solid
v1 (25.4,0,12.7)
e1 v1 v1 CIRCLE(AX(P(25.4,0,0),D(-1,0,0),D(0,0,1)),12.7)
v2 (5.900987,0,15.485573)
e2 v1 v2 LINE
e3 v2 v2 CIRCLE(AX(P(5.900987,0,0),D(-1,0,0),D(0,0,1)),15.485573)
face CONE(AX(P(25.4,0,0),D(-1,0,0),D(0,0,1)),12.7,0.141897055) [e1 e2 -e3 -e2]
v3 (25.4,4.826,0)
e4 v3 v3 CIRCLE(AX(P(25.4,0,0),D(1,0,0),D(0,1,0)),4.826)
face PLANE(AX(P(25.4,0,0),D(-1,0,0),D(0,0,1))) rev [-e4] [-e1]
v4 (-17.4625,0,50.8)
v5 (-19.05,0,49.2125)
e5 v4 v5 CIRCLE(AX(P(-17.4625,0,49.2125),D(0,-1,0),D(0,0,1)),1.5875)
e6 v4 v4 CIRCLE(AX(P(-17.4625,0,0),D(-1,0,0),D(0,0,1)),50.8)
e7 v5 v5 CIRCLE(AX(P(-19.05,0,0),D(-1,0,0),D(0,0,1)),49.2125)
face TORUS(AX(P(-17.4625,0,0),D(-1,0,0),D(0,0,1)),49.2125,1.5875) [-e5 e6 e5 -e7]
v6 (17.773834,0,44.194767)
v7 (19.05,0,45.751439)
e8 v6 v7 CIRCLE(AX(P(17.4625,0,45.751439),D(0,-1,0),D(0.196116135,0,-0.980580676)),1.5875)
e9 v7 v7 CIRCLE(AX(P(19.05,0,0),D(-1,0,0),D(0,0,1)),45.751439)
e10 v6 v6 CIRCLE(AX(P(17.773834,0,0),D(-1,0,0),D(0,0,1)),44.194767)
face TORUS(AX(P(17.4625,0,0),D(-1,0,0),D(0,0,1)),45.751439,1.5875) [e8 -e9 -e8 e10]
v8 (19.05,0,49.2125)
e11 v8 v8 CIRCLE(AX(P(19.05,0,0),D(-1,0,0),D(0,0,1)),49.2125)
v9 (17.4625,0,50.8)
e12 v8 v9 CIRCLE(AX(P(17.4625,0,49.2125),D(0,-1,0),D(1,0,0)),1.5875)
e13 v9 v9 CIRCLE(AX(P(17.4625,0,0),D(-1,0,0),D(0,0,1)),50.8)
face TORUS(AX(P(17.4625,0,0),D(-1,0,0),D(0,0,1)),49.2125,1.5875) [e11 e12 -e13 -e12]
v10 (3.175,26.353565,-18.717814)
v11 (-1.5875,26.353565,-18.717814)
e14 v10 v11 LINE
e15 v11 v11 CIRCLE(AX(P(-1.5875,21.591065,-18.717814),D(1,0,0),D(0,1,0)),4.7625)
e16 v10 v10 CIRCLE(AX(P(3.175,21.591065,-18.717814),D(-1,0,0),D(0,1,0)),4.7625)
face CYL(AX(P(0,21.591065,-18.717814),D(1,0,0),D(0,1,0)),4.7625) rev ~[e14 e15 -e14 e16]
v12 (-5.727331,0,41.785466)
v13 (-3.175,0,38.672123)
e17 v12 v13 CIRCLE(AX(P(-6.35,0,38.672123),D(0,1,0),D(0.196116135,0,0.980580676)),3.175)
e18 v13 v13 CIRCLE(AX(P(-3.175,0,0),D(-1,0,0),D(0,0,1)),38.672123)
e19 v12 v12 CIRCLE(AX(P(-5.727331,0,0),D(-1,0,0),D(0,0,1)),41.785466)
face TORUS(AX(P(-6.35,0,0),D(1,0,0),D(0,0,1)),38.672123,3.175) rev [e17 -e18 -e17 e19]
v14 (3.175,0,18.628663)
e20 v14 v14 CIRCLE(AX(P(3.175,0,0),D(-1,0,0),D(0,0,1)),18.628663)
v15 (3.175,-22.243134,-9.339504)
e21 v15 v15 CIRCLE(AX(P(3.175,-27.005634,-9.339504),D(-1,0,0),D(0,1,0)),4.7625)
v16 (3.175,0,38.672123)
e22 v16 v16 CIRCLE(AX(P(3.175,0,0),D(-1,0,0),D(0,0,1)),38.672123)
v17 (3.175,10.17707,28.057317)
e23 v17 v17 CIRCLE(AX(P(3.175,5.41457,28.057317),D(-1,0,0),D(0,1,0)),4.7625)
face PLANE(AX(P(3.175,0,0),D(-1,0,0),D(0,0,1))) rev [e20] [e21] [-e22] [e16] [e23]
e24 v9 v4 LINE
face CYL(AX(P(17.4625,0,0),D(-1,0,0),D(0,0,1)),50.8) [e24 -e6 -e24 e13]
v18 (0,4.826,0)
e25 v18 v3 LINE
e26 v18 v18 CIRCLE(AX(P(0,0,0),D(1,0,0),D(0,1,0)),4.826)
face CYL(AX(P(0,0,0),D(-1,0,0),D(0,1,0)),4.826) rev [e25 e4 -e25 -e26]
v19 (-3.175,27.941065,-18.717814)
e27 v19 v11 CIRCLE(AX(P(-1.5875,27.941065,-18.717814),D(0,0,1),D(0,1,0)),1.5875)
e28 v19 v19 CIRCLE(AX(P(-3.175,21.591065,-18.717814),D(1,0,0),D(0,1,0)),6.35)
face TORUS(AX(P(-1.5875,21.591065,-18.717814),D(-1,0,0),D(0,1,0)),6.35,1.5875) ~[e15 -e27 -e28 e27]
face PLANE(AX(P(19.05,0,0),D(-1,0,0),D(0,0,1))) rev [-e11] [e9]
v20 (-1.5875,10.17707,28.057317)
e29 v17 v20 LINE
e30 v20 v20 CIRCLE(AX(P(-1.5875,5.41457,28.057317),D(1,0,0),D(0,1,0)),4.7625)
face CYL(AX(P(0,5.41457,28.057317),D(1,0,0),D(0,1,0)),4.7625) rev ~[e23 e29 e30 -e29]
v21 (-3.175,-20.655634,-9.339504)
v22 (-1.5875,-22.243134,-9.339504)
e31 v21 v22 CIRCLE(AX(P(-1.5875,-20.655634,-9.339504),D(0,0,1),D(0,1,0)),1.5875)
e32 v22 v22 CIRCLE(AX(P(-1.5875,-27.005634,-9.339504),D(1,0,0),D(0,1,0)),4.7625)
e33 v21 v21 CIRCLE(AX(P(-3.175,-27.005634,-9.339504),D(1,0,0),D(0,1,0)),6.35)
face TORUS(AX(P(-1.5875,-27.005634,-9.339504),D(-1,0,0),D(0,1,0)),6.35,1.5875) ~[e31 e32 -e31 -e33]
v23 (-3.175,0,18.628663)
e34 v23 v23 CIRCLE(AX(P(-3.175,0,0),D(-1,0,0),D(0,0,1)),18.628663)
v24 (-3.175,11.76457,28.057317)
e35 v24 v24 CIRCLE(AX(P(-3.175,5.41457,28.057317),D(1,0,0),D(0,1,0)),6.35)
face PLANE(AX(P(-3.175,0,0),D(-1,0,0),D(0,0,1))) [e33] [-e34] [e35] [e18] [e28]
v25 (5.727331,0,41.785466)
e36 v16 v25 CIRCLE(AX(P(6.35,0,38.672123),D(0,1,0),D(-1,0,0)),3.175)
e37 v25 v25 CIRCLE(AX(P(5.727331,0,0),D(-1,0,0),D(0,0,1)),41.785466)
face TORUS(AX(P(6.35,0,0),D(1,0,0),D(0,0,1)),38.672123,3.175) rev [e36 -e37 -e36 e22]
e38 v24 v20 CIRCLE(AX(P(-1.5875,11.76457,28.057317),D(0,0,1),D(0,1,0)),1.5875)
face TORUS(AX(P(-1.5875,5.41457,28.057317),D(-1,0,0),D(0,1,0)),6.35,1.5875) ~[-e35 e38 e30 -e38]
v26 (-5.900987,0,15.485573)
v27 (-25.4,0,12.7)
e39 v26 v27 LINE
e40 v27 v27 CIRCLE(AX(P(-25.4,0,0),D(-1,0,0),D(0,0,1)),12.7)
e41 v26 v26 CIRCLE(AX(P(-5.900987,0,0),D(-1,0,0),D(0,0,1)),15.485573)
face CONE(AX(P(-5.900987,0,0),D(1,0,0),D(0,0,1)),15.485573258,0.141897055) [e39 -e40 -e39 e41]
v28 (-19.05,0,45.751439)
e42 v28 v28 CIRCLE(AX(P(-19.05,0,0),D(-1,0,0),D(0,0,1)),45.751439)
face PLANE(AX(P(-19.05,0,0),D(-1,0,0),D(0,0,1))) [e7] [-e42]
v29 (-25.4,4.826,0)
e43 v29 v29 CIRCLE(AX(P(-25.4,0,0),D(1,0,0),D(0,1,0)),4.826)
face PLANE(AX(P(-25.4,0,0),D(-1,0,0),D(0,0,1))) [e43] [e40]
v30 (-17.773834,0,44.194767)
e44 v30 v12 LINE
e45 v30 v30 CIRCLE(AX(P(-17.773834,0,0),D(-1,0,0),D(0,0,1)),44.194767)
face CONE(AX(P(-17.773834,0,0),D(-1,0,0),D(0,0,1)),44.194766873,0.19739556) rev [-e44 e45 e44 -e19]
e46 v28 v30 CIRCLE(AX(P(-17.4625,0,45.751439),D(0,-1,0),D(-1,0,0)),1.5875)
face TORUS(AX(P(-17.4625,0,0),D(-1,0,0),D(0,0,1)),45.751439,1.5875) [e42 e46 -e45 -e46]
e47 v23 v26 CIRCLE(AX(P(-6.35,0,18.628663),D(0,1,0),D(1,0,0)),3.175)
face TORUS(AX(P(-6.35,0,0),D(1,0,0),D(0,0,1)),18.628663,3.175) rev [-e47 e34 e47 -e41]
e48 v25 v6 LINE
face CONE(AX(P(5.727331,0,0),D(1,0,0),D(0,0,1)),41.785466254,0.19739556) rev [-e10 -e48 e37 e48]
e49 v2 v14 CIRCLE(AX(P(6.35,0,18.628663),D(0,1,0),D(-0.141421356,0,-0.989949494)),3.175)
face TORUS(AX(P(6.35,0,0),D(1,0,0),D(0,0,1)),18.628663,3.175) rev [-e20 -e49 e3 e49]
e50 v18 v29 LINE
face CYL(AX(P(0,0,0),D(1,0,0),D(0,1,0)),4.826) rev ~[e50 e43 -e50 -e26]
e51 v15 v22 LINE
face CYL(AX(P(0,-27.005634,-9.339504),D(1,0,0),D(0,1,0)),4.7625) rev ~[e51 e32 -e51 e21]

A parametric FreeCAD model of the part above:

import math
import FreeCAD as App
import Part
import Sketcher
Q = App.Units.Quantity


def edges_at(feature, points):
    """Names of the edges that pass closest to the given points."""
    edges = feature.Shape.Edges
    near = lambda p: min(range(len(edges)), key=lambda i: edges[i].distToShape(Part.Vertex(*p))[0])
    return sorted({f"Edge{near(p) + 1}" for p in points})

doc = App.newDocument("Part")
params = doc.addObject("Spreadsheet::Sheet", "Params")
for row, (alias, value) in enumerate([
    ("sketch1_width", "2 in"),
    ("sketch1_height", "0.5 in"),
    ("sketch1_radius", "0.0625 in"),
    ("sketch1_radius2", "0.125 in"),
    ("revolution_angle", "360 deg"),
    ("sketch2_diameter", "0.38 in"),
    ("sketch2_diameter2", "0.375 in"),
    ("fillet_radius", "0.0625 in"),
], start=1):
    params.set(f"A{row}", alias)
    params.set(f"B{row}", "=" + value)
    params.setAlias(f"B{row}", alias)

body = doc.addObject("PartDesign::Body", "Body")

# Sketch on XZ plane
sketch1 = body.newObject("Sketcher::SketchObject", "Sketch")
sketch1.AttachmentSupport = (doc.getObject("XZ_Plane"), [""])
sketch1.MapMode = "FlatFace"
sketch1.addGeometry([
    Part.LineSegment(App.Vector(17.5, 50.8, 0), App.Vector(-17.5, 50.8, 0)),  # 0
    Part.ArcOfCircle(Part.Circle(App.Vector(-17.5, 49.2, 0), App.Vector(0, 0, 1), 1.6), math.radians(90), math.radians(180)),  # 1
    Part.LineSegment(App.Vector(-19.1, 49.2, 0), App.Vector(-19.1, 45.8, 0)),  # 2
    Part.ArcOfCircle(Part.Circle(App.Vector(-17.5, 45.8, 0), App.Vector(0, 0, 1), 1.6), math.radians(180), math.radians(259)),  # 3
    Part.LineSegment(App.Vector(-17.8, 44.2, 0), App.Vector(-5.7, 41.8, 0)),  # 4
    Part.ArcOfCircle(Part.Circle(App.Vector(-6.3, 38.7, 0), App.Vector(0, 0, 1), 3.2), math.radians(0), math.radians(79)),  # 5
    Part.LineSegment(App.Vector(-3.2, 38.7, 0), App.Vector(-3.2, 18.6, 0)),  # 6
    Part.ArcOfCircle(Part.Circle(App.Vector(-6.3, 18.6, 0), App.Vector(0, 0, 1), 3.2), math.radians(-82), math.radians(0)),  # 7
    Part.LineSegment(App.Vector(-5.9, 15.5, 0), App.Vector(-25.4, 12.7, 0)),  # 8
    Part.LineSegment(App.Vector(-25.4, 12.7, 0), App.Vector(-25.4, 0, 0)),  # 9
    Part.LineSegment(App.Vector(-25.4, 0, 0), App.Vector(25.4, 0, 0)),  # 10
    Part.LineSegment(App.Vector(25.4, 0, 0), App.Vector(25.4, 12.7, 0)),  # 11
    Part.LineSegment(App.Vector(25.4, 12.7, 0), App.Vector(5.9, 15.5, 0)),  # 12
    Part.ArcOfCircle(Part.Circle(App.Vector(6.3, 18.6, 0), App.Vector(0, 0, 1), 3.2), math.radians(180), math.radians(262)),  # 13
    Part.LineSegment(App.Vector(3.2, 18.6, 0), App.Vector(3.2, 38.7, 0)),  # 14
    Part.ArcOfCircle(Part.Circle(App.Vector(6.3, 38.7, 0), App.Vector(0, 0, 1), 3.2), math.radians(101), math.radians(180)),  # 15
    Part.LineSegment(App.Vector(5.7, 41.8, 0), App.Vector(17.8, 44.2, 0)),  # 16
    Part.ArcOfCircle(Part.Circle(App.Vector(17.5, 45.8, 0), App.Vector(0, 0, 1), 1.6), math.radians(-79), math.radians(0)),  # 17
    Part.LineSegment(App.Vector(19.1, 45.8, 0), App.Vector(19.1, 49.2, 0)),  # 18
    Part.ArcOfCircle(Part.Circle(App.Vector(17.5, 49.2, 0), App.Vector(0, 0, 1), 1.6), math.radians(0), math.radians(90)),  # 19
], False)
sketch1.addConstraint([
    Sketcher.Constraint("Tangent", 0, 2, 1, 1),
    Sketcher.Constraint("Tangent", 1, 2, 2, 1),
    Sketcher.Constraint("Tangent", 2, 2, 3, 1),
    Sketcher.Constraint("Tangent", 3, 2, 4, 1),
    Sketcher.Constraint("Tangent", 4, 2, 5, 2),
    Sketcher.Constraint("Tangent", 5, 1, 6, 1),
    Sketcher.Constraint("Tangent", 6, 2, 7, 2),
    Sketcher.Constraint("Tangent", 7, 1, 8, 1),
    Sketcher.Constraint("Coincident", 8, 2, 9, 1),
    Sketcher.Constraint("Coincident", 9, 2, 10, 1),
    Sketcher.Constraint("Coincident", 10, 2, 11, 1),
    Sketcher.Constraint("Coincident", 11, 2, 12, 1),
    Sketcher.Constraint("Tangent", 12, 2, 13, 2),
    Sketcher.Constraint("Tangent", 13, 1, 14, 1),
    Sketcher.Constraint("Tangent", 14, 2, 15, 2),
    Sketcher.Constraint("Tangent", 15, 1, 16, 1),
    Sketcher.Constraint("Tangent", 16, 2, 17, 1),
    Sketcher.Constraint("Tangent", 17, 2, 18, 1),
    Sketcher.Constraint("Tangent", 18, 2, 19, 1),
    Sketcher.Constraint("Tangent", 19, 2, 0, 1),
    Sketcher.Constraint("Horizontal", 0),
    Sketcher.Constraint("Vertical", 2),
    Sketcher.Constraint("Vertical", 6),
    Sketcher.Constraint("Vertical", 9),
    Sketcher.Constraint("Horizontal", 10),
    Sketcher.Constraint("Vertical", 11),
    Sketcher.Constraint("Vertical", 14),
    Sketcher.Constraint("Vertical", 18),
    Sketcher.Constraint("Equal", 1, 3),
    Sketcher.Constraint("Equal", 5, 7),
    Sketcher.Constraint("Equal", 7, 13),
    Sketcher.Constraint("Equal", 13, 15),
    Sketcher.Constraint("Equal", 3, 17),
    Sketcher.Constraint("Equal", 17, 19),
    Sketcher.Constraint("Symmetric", 9, 2, 10, 2, -1, 1),
    Sketcher.Constraint("Symmetric", 7, 3, 13, 3, -2),
    Sketcher.Constraint("Symmetric", 3, 3, 17, 3, -2),
    Sketcher.Constraint("Horizontal", 5, 3, 15, 3),
    Sketcher.Constraint("Horizontal", 8, 2, 11, 2),
    Sketcher.Constraint("DistanceX", 10, 1, 10, 2, Q("2 in")),
    Sketcher.Constraint("DistanceY", 9, 2, 9, 1, Q("0.5 in")),
    Sketcher.Constraint("DistanceY", -1, 1, 0, 2, Q("2 in")),
    Sketcher.Constraint("Radius", 1, Q("0.0625 in")),
    Sketcher.Constraint("Radius", 5, Q("0.125 in")),
    Sketcher.Constraint("DistanceX", 1, 2, 15, 3, Q("1 in")),
    Sketcher.Constraint("DistanceX", 7, 3, 13, 3, Q("0.5 in")),
    Sketcher.Constraint("DistanceY", 2, 2, 2, 1, Q("3.461061 mm")),
    Sketcher.Constraint("DistanceY", 6, 2, 6, 1, Q("20.04346 mm")),
    Sketcher.Constraint("DistanceY", 4, 2, 3, 2, Q("2.409301 mm")),
])
sketch1.setExpression("Constraints[39]", "Params.sketch1_width")
sketch1.setExpression("Constraints[40]", "Params.sketch1_height")
sketch1.setExpression("Constraints[42]", "Params.sketch1_radius")
sketch1.setExpression("Constraints[43]", "Params.sketch1_radius2")
revolution = body.newObject("PartDesign::Revolution", "Revolution")
revolution.Profile = sketch1
revolution.ReferenceAxis = (sketch1, ["H_Axis"])
revolution.setExpression("Angle", "Params.revolution_angle")

# Sketch on YZ plane
sketch2 = body.newObject("Sketcher::SketchObject", "Sketch001")
sketch2.AttachmentSupport = (doc.getObject("YZ_Plane"), [""])
sketch2.MapMode = "FlatFace"
sketch2.addGeometry([
    Part.Circle(App.Vector(0, 0, 0), App.Vector(0, 0, 1), 4.8),
    Part.Circle(App.Vector(5.4, 28.1, 0), App.Vector(0, 0, 1), 4.8),
    Part.Circle(App.Vector(-27, -9.3, 0), App.Vector(0, 0, 1), 4.8),
    Part.Circle(App.Vector(21.6, -18.7, 0), App.Vector(0, 0, 1), 4.8),
], False)
sketch2.addConstraint([
    Sketcher.Constraint("Coincident", 0, 3, -1, 1),
    Sketcher.Constraint("Equal", 1, 2),
    Sketcher.Constraint("Equal", 2, 3),
    Sketcher.Constraint("Diameter", 0, Q("0.38 in")),
    Sketcher.Constraint("Diameter", 1, Q("0.375 in")),
    Sketcher.Constraint("DistanceX", 2, 3, 3, 3, Q("48.596699 mm")),
    Sketcher.Constraint("DistanceX", -1, 1, 1, 3, Q("5.41457 mm")),
    Sketcher.Constraint("DistanceY", 2, 3, 1, 3, Q("37.396821 mm")),
    Sketcher.Constraint("DistanceY", 3, 3, 2, 3, Q("9.37831 mm")),
    Sketcher.Constraint("DistanceY", -1, 1, 1, 3, Q("28.057317 mm")),
    Sketcher.Constraint("DistanceX", 2, 3, -1, 1, Q("27.005634 mm")),
])
sketch2.setExpression("Constraints[3]", "Params.sketch2_diameter")
sketch2.setExpression("Constraints[4]", "Params.sketch2_diameter2")
pocket1 = body.newObject("PartDesign::Pocket", "Pocket")
pocket1.Profile = sketch2
pocket1.Type = "ThroughAll"
pocket1.Midplane = True
doc.recompute()

fillet = body.newObject("PartDesign::Fillet", "Fillet")
fillet.Base = (pocket1, edges_at(pocket1, [(-3.175, 0.652, 28.057), (-3.175, -31.768, -9.34), (-3.175, 16.829, -18.718)]))
fillet.setExpression("Radius", "Params.fillet_radius")

doc.recompute()
